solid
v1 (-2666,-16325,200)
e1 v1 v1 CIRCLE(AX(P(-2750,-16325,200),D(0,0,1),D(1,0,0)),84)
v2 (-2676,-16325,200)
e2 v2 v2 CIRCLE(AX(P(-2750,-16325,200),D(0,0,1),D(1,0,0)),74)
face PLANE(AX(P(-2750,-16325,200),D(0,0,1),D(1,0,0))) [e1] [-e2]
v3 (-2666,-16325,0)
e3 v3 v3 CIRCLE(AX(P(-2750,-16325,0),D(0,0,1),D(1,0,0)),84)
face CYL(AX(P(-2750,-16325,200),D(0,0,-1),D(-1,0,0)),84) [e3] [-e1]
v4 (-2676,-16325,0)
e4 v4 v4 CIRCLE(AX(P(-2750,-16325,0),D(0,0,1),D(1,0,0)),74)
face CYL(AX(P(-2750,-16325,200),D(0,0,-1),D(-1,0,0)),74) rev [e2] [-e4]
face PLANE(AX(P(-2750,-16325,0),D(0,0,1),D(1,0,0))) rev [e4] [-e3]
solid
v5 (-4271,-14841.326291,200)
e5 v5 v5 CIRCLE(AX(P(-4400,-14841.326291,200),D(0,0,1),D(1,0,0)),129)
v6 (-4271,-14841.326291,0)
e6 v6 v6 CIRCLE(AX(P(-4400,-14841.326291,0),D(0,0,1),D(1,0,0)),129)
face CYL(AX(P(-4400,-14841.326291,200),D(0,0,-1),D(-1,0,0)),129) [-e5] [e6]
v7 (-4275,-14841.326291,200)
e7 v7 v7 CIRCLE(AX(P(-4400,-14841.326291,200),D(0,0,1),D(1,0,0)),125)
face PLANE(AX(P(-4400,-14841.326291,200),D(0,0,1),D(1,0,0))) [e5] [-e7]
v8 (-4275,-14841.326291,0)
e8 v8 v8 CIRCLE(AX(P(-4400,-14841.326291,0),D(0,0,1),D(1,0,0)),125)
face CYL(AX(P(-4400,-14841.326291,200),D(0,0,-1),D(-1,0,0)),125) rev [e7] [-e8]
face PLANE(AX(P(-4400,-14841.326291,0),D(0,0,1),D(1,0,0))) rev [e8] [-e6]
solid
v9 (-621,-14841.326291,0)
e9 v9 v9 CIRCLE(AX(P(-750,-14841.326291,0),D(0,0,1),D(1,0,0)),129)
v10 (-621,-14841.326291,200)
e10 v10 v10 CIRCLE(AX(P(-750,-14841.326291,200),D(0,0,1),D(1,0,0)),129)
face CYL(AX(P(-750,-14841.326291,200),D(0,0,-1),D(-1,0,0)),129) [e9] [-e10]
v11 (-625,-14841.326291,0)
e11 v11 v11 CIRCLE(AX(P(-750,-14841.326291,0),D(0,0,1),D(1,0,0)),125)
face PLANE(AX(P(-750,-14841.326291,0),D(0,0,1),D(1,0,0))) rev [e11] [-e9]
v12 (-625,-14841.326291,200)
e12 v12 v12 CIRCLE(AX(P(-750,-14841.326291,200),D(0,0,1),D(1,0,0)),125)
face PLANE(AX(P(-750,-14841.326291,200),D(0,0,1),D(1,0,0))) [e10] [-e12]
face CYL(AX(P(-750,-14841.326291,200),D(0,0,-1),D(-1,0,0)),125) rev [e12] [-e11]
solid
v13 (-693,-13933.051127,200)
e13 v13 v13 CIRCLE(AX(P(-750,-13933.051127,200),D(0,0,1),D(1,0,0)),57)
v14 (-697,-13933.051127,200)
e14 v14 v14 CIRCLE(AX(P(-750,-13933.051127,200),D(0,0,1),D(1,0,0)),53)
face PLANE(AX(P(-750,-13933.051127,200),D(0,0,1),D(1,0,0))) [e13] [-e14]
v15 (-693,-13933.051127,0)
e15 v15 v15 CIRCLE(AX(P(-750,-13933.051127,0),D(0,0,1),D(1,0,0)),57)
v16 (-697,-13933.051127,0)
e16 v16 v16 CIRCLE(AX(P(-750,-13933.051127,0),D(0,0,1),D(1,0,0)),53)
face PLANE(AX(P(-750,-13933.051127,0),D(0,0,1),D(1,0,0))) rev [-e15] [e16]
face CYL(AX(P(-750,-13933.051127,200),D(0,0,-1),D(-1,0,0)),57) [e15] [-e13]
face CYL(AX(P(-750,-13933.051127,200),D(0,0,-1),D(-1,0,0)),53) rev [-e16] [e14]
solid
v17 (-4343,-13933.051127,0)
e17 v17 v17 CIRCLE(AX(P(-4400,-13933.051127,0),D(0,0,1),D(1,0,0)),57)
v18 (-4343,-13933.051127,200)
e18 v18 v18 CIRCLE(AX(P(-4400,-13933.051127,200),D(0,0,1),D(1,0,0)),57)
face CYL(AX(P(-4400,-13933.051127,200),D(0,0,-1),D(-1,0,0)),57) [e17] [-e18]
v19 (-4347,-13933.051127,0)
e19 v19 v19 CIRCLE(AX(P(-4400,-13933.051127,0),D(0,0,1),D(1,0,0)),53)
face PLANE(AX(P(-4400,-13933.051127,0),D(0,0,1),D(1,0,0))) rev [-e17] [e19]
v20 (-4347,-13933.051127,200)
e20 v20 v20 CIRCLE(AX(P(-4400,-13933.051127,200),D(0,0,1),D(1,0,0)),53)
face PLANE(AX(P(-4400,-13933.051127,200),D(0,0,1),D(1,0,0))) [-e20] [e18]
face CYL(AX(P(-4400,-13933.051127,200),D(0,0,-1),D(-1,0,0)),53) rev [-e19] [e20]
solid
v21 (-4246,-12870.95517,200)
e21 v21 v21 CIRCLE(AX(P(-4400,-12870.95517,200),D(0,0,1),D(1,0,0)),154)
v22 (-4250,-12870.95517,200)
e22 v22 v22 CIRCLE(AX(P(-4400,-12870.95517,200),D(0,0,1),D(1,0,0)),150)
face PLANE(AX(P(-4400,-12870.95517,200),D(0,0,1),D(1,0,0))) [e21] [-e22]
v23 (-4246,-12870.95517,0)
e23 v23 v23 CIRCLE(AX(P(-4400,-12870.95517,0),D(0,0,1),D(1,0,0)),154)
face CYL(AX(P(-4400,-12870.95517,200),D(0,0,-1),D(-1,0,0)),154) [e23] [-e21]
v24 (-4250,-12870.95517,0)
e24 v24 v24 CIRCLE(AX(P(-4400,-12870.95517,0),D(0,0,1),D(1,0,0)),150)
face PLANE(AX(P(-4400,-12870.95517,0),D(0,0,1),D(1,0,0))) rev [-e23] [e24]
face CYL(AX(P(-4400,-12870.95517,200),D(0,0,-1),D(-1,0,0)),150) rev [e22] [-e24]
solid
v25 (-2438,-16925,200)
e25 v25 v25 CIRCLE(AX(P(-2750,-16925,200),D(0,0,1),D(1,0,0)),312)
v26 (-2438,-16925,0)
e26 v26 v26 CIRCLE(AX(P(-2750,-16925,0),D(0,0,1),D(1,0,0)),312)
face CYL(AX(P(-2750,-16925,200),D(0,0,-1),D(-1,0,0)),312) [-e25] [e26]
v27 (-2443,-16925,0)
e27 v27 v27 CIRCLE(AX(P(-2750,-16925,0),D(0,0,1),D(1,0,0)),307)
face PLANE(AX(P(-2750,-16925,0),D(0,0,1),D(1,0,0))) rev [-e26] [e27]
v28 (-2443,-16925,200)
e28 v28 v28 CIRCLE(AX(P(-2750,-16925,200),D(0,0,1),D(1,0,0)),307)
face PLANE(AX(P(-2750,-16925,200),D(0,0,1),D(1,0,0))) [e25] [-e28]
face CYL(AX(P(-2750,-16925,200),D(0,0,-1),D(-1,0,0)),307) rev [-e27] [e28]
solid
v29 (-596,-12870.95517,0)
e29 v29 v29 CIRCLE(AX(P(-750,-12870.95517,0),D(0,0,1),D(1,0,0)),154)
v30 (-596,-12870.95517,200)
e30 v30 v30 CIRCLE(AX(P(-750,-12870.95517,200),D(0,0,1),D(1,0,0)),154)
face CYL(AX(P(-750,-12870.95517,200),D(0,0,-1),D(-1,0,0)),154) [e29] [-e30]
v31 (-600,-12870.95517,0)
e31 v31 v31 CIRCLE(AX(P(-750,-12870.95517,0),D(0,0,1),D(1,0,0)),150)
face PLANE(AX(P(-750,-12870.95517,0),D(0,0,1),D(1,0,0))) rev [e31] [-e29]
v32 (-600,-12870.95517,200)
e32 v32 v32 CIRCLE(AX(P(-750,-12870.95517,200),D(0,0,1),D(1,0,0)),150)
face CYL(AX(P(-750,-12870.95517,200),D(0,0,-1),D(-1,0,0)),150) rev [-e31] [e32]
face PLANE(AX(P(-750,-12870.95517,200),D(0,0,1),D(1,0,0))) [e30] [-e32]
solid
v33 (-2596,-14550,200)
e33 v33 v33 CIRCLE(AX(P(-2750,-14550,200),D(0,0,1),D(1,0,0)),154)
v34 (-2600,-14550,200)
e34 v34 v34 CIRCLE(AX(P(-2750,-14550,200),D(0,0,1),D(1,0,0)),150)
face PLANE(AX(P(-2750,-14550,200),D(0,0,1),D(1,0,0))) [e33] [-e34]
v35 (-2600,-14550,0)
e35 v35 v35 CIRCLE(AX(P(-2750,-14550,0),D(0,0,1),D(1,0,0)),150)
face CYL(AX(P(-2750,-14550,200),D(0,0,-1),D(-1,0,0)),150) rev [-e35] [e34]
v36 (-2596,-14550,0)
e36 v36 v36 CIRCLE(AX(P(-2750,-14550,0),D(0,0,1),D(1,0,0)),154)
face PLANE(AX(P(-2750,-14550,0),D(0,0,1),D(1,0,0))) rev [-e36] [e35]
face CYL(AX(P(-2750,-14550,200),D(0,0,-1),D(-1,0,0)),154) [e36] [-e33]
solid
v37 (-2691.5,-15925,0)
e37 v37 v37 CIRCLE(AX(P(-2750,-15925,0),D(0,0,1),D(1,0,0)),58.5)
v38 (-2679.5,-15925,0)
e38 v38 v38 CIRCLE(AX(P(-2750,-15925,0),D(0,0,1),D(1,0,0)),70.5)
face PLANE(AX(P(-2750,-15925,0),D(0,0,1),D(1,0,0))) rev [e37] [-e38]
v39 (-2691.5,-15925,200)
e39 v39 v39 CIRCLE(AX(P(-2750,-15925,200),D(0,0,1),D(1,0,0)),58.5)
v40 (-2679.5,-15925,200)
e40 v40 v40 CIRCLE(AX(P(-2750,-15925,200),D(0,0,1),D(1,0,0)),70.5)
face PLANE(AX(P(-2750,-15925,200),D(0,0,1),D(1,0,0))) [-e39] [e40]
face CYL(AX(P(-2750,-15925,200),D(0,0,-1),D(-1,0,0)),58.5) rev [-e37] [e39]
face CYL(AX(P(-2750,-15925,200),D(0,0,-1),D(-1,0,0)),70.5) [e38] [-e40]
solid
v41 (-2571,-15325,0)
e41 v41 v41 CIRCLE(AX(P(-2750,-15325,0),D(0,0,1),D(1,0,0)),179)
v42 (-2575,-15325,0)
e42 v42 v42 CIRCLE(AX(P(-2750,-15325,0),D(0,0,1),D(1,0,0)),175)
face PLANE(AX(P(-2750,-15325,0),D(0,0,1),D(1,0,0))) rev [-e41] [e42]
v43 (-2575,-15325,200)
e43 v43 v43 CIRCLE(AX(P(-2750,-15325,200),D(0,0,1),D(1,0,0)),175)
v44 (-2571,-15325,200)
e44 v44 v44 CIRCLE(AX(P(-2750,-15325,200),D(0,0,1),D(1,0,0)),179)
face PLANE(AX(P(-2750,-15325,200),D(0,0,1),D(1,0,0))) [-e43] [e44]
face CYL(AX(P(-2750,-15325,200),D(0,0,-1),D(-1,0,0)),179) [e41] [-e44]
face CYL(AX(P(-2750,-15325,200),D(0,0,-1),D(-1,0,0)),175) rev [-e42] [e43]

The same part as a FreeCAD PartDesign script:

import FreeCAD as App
import Part
import Sketcher
from FreeCAD import Vector

doc = App.newDocument("Part")
params = doc.addObject("Spreadsheet::Sheet", "Params")
for row, (alias, value) in enumerate([
    ("sketch1_diameter", "624 mm"),
    ("sketch1_diameter2", "614 mm"),
    ("pad1_length", "200 mm"),
    ("sketch2_diameter", "168 mm"),
    ("sketch2_diameter2", "148 mm"),
    ("pad2_length", "200 mm"),
    ("sketch3_diameter", "141 mm"),
    ("sketch3_diameter2", "117 mm"),
    ("pad3_length", "200 mm"),
    ("sketch4_diameter", "358 mm"),
    ("sketch4_diameter2", "350 mm"),
    ("pad4_length", "200 mm"),
    ("sketch5_diameter", "308 mm"),
    ("sketch5_diameter2", "300 mm"),
    ("pad5_length", "200 mm"),
    ("sketch6_diameter", "308 mm"),
    ("sketch6_diameter2", "300 mm"),
    ("pad6_length", "200 mm"),
    ("sketch7_diameter", "114 mm"),
    ("sketch7_diameter2", "106 mm"),
    ("pad7_length", "200 mm"),
    ("sketch8_diameter", "258 mm"),
    ("sketch8_diameter2", "250 mm"),
    ("pad8_length", "200 mm"),
    ("sketch9_diameter", "258 mm"),
    ("sketch9_diameter2", "250 mm"),
    ("pad9_length", "200 mm"),
    ("sketch10_diameter", "114 mm"),
    ("sketch10_diameter2", "106 mm"),
    ("pad10_length", "200 mm"),
    ("sketch11_diameter", "308 mm"),
    ("sketch11_diameter2", "300 mm"),
    ("pad11_length", "200 mm"),
], start=1):
    params.set(f"A{row}", alias)
    params.set(f"B{row}", "=" + value)
    params.setAlias(f"B{row}", alias)

body = doc.addObject("PartDesign::Body", "Body")

# Sketch on XY plane
sketch1 = body.newObject("Sketcher::SketchObject", "Sketch")
sketch1.AttachmentSupport = (doc.getObject("XY_Plane"), [""])
sketch1.MapMode = "FlatFace"
sketch1.addGeometry([
    Part.Circle(Vector(-2750, -16925, 0), Vector(0, 0, 1), 312),
    Part.Circle(Vector(-2750, -16925, 0), Vector(0, 0, 1), 307),
], False)
sketch1.addConstraint([
    Sketcher.Constraint("Coincident", 1, 3, 0, 3),
    Sketcher.Constraint("Diameter", 0, 624.0),
    Sketcher.Constraint("Diameter", 1, 614.0),
    Sketcher.Constraint("DistanceX", 0, 3, -1, 1, 2750.0),
    Sketcher.Constraint("DistanceY", 0, 3, -1, 1, 16925.0),
])
sketch1.setExpression("Constraints[1]", "Params.sketch1_diameter")
sketch1.setExpression("Constraints[2]", "Params.sketch1_diameter2")
pad1 = body.newObject("PartDesign::Pad", "Pad")
pad1.Profile = sketch1
pad1.setExpression("Length", "Params.pad1_length")
body2 = doc.addObject("PartDesign::Body", "Body001")

# Sketch on XY plane
sketch2 = body2.newObject("Sketcher::SketchObject", "Sketch001")
sketch2.AttachmentSupport = (doc.getObject("XY_Plane001"), [""])
sketch2.MapMode = "FlatFace"
sketch2.addGeometry([
    Part.Circle(Vector(-2750, -16325, 0), Vector(0, 0, 1), 84),
    Part.Circle(Vector(-2750, -16325, 0), Vector(0, 0, 1), 74),
], False)
sketch2.addConstraint([
    Sketcher.Constraint("Coincident", 1, 3, 0, 3),
    Sketcher.Constraint("Diameter", 0, 168.0),
    Sketcher.Constraint("Diameter", 1, 148.0),
    Sketcher.Constraint("DistanceX", 0, 3, -1, 1, 2750.0),
    Sketcher.Constraint("DistanceY", 0, 3, -1, 1, 16325.0),
])
sketch2.setExpression("Constraints[1]", "Params.sketch2_diameter")
sketch2.setExpression("Constraints[2]", "Params.sketch2_diameter2")
pad2 = body2.newObject("PartDesign::Pad", "Pad001")
pad2.Profile = sketch2
pad2.setExpression("Length", "Params.pad2_length")
body3 = doc.addObject("PartDesign::Body", "Body002")

# Sketch on XY plane
sketch3 = body3.newObject("Sketcher::SketchObject", "Sketch002")
sketch3.AttachmentSupport = (doc.getObject("XY_Plane002"), [""])
sketch3.MapMode = "FlatFace"
sketch3.addGeometry([
    Part.Circle(Vector(-2750, -15925, 0), Vector(0, 0, 1), 70),
    Part.Circle(Vector(-2750, -15925, 0), Vector(0, 0, 1), 58),
], False)
sketch3.addConstraint([
    Sketcher.Constraint("Coincident", 1, 3, 0, 3),
    Sketcher.Constraint("Diameter", 0, 141.0),
    Sketcher.Constraint("Diameter", 1, 117.0),
    Sketcher.Constraint("DistanceX", 0, 3, -1, 1, 2750.0),
    Sketcher.Constraint("DistanceY", 0, 3, -1, 1, 15925.0),
])
sketch3.setExpression("Constraints[1]", "Params.sketch3_diameter")
sketch3.setExpression("Constraints[2]", "Params.sketch3_diameter2")
pad3 = body3.newObject("PartDesign::Pad", "Pad002")
pad3.Profile = sketch3
pad3.setExpression("Length", "Params.pad3_length")
body4 = doc.addObject("PartDesign::Body", "Body003")

# Sketch on XY plane
sketch4 = body4.newObject("Sketcher::SketchObject", "Sketch003")
sketch4.AttachmentSupport = (doc.getObject("XY_Plane003"), [""])
sketch4.MapMode = "FlatFace"
sketch4.addGeometry([
    Part.Circle(Vector(-2750, -15325, 0), Vector(0, 0, 1), 179),
    Part.Circle(Vector(-2750, -15325, 0), Vector(0, 0, 1), 175),
], False)
sketch4.addConstraint([
    Sketcher.Constraint("Coincident", 1, 3, 0, 3),
    Sketcher.Constraint("Diameter", 0, 358.0),
    Sketcher.Constraint("Diameter", 1, 350.0),
    Sketcher.Constraint("DistanceX", 0, 3, -1, 1, 2750.0),
    Sketcher.Constraint("DistanceY", 0, 3, -1, 1, 15325.0),
])
sketch4.setExpression("Constraints[1]", "Params.sketch4_diameter")
sketch4.setExpression("Constraints[2]", "Params.sketch4_diameter2")
pad4 = body4.newObject("PartDesign::Pad", "Pad003")
pad4.Profile = sketch4
pad4.setExpression("Length", "Params.pad4_length")
body5 = doc.addObject("PartDesign::Body", "Body004")

# Sketch on XY plane
sketch5 = body5.newObject("Sketcher::SketchObject", "Sketch004")
sketch5.AttachmentSupport = (doc.getObject("XY_Plane004"), [""])
sketch5.MapMode = "FlatFace"
sketch5.addGeometry([
    Part.Circle(Vector(-2750, -14550, 0), Vector(0, 0, 1), 154),
    Part.Circle(Vector(-2750, -14550, 0), Vector(0, 0, 1), 150),
], False)
sketch5.addConstraint([
    Sketcher.Constraint("Coincident", 1, 3, 0, 3),
    Sketcher.Constraint("Diameter", 0, 308.0),
    Sketcher.Constraint("Diameter", 1, 300.0),
    Sketcher.Constraint("DistanceX", 0, 3, -1, 1, 2750.0),
    Sketcher.Constraint("DistanceY", 0, 3, -1, 1, 14550.0),
])
sketch5.setExpression("Constraints[1]", "Params.sketch5_diameter")
sketch5.setExpression("Constraints[2]", "Params.sketch5_diameter2")
pad5 = body5.newObject("PartDesign::Pad", "Pad004")
pad5.Profile = sketch5
pad5.setExpression("Length", "Params.pad5_length")
body6 = doc.addObject("PartDesign::Body", "Body005")

# Sketch on XY plane
sketch6 = body6.newObject("Sketcher::SketchObject", "Sketch005")
sketch6.AttachmentSupport = (doc.getObject("XY_Plane005"), [""])
sketch6.MapMode = "FlatFace"
sketch6.addGeometry([
    Part.Circle(Vector(-750, -12870.95517, 0), Vector(0, 0, 1), 154),
    Part.Circle(Vector(-750, -12870.95517, 0), Vector(0, 0, 1), 150),
], False)
sketch6.addConstraint([
    Sketcher.Constraint("Coincident", 1, 3, 0, 3),
    Sketcher.Constraint("Diameter", 0, 308.0),
    Sketcher.Constraint("Diameter", 1, 300.0),
    Sketcher.Constraint("DistanceX", 0, 3, -1, 1, 750.0),
    Sketcher.Constraint("DistanceY", 0, 3, -1, 1, 12870.95517),
])
sketch6.setExpression("Constraints[1]", "Params.sketch6_diameter")
sketch6.setExpression("Constraints[2]", "Params.sketch6_diameter2")
pad6 = body6.newObject("PartDesign::Pad", "Pad005")
pad6.Profile = sketch6
pad6.setExpression("Length", "Params.pad6_length")
body7 = doc.addObject("PartDesign::Body", "Body006")

# Sketch on XY plane
sketch7 = body7.newObject("Sketcher::SketchObject", "Sketch006")
sketch7.AttachmentSupport = (doc.getObject("XY_Plane006"), [""])
sketch7.MapMode = "FlatFace"
sketch7.addGeometry([
    Part.Circle(Vector(-750, -13933, 0), Vector(0, 0, 1), 57),
    Part.Circle(Vector(-750, -13933, 0), Vector(0, 0, 1), 53),
], False)
sketch7.addConstraint([
    Sketcher.Constraint("Coincident", 1, 3, 0, 3),
    Sketcher.Constraint("Diameter", 0, 114.0),
    Sketcher.Constraint("Diameter", 1, 106.0),
    Sketcher.Constraint("DistanceX", 0, 3, -1, 1, 750.0),
    Sketcher.Constraint("DistanceY", 0, 3, -1, 1, 13933.051127),
])
sketch7.setExpression("Constraints[1]", "Params.sketch7_diameter")
sketch7.setExpression("Constraints[2]", "Params.sketch7_diameter2")
pad7 = body7.newObject("PartDesign::Pad", "Pad006")
pad7.Profile = sketch7
pad7.setExpression("Length", "Params.pad7_length")
body8 = doc.addObject("PartDesign::Body", "Body007")

# Sketch on XY plane
sketch8 = body8.newObject("Sketcher::SketchObject", "Sketch007")
sketch8.AttachmentSupport = (doc.getObject("XY_Plane007"), [""])
sketch8.MapMode = "FlatFace"
sketch8.addGeometry([
    Part.Circle(Vector(-750, -14841, 0), Vector(0, 0, 1), 129),
    Part.Circle(Vector(-750, -14841, 0), Vector(0, 0, 1), 125),
], False)
sketch8.addConstraint([
    Sketcher.Constraint("Coincident", 1, 3, 0, 3),
    Sketcher.Constraint("Diameter", 0, 258.0),
    Sketcher.Constraint("Diameter", 1, 250.0),
    Sketcher.Constraint("DistanceX", 0, 3, -1, 1, 750.0),
    Sketcher.Constraint("DistanceY", 0, 3, -1, 1, 14841.326291),
])
sketch8.setExpression("Constraints[1]", "Params.sketch8_diameter")
sketch8.setExpression("Constraints[2]", "Params.sketch8_diameter2")
pad8 = body8.newObject("PartDesign::Pad", "Pad007")
pad8.Profile = sketch8
pad8.setExpression("Length", "Params.pad8_length")
body9 = doc.addObject("PartDesign::Body", "Body008")

# Sketch on XY plane
sketch9 = body9.newObject("Sketcher::SketchObject", "Sketch008")
sketch9.AttachmentSupport = (doc.getObject("XY_Plane008"), [""])
sketch9.MapMode = "FlatFace"
sketch9.addGeometry([
    Part.Circle(Vector(-4400, -14841, 0), Vector(0, 0, 1), 129),
    Part.Circle(Vector(-4400, -14841, 0), Vector(0, 0, 1), 125),
], False)
sketch9.addConstraint([
    Sketcher.Constraint("Coincident", 1, 3, 0, 3),
    Sketcher.Constraint("Diameter", 0, 258.0),
    Sketcher.Constraint("Diameter", 1, 250.0),
    Sketcher.Constraint("DistanceX", 0, 3, -1, 1, 4400.0),
    Sketcher.Constraint("DistanceY", 0, 3, -1, 1, 14841.326291),
])
sketch9.setExpression("Constraints[1]", "Params.sketch9_diameter")
sketch9.setExpression("Constraints[2]", "Params.sketch9_diameter2")
pad9 = body9.newObject("PartDesign::Pad", "Pad008")
pad9.Profile = sketch9
pad9.setExpression("Length", "Params.pad9_length")
body10 = doc.addObject("PartDesign::Body", "Body009")

# Sketch on XY plane
sketch10 = body10.newObject("Sketcher::SketchObject", "Sketch009")
sketch10.AttachmentSupport = (doc.getObject("XY_Plane009"), [""])
sketch10.MapMode = "FlatFace"
sketch10.addGeometry([
    Part.Circle(Vector(-4400, -13933, 0), Vector(0, 0, 1), 57),
    Part.Circle(Vector(-4400, -13933, 0), Vector(0, 0, 1), 53),
], False)
sketch10.addConstraint([
    Sketcher.Constraint("Coincident", 1, 3, 0, 3),
    Sketcher.Constraint("Diameter", 0, 114.0),
    Sketcher.Constraint("Diameter", 1, 106.0),
    Sketcher.Constraint("DistanceX", 0, 3, -1, 1, 4400.0),
    Sketcher.Constraint("DistanceY", 0, 3, -1, 1, 13933.051127),
])
sketch10.setExpression("Constraints[1]", "Params.sketch10_diameter")
sketch10.setExpression("Constraints[2]", "Params.sketch10_diameter2")
pad10 = body10.newObject("PartDesign::Pad", "Pad009")
pad10.Profile = sketch10
pad10.setExpression("Length", "Params.pad10_length")
body11 = doc.addObject("PartDesign::Body", "Body010")

# Sketch on XY plane
sketch11 = body11.newObject("Sketcher::SketchObject", "Sketch010")
sketch11.AttachmentSupport = (doc.getObject("XY_Plane010"), [""])
sketch11.MapMode = "FlatFace"
sketch11.addGeometry([
    Part.Circle(Vector(-4400, -12870.95517, 0), Vector(0, 0, 1), 154),
    Part.Circle(Vector(-4400, -12870.95517, 0), Vector(0, 0, 1), 150),
], False)
sketch11.addConstraint([
    Sketcher.Constraint("Coincident", 1, 3, 0, 3),
    Sketcher.Constraint("Diameter", 0, 308.0),
    Sketcher.Constraint("Diameter", 1, 300.0),
    Sketcher.Constraint("DistanceX", 0, 3, -1, 1, 4400.0),
    Sketcher.Constraint("DistanceY", 0, 3, -1, 1, 12870.95517),
])
sketch11.setExpression("Constraints[1]", "Params.sketch11_diameter")
sketch11.setExpression("Constraints[2]", "Params.sketch11_diameter2")
pad11 = body11.newObject("PartDesign::Pad", "Pad010")
pad11.Profile = sketch11
pad11.setExpression("Length", "Params.pad11_length")

doc.recompute()
